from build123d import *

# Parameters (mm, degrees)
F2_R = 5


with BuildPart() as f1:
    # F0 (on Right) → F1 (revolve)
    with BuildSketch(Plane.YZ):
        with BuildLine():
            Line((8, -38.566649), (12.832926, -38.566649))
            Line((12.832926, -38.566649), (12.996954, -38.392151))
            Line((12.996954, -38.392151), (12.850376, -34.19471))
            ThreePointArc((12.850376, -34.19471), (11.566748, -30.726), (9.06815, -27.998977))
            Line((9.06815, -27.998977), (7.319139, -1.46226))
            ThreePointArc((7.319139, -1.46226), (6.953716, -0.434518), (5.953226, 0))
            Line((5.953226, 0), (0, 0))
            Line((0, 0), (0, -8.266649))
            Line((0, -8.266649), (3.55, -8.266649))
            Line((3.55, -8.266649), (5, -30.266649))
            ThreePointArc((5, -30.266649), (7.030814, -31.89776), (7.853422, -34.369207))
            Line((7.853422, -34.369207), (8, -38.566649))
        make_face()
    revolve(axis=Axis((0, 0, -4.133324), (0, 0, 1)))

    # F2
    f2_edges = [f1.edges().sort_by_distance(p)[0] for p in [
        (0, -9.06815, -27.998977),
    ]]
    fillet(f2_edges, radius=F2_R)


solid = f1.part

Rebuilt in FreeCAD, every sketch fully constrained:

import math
import FreeCAD as App
import Part
import Sketcher
Q = App.Units.Quantity


def edges_at(feature, points):
    """Names of the edges that pass closest to the given points."""
    edges = feature.Shape.Edges
    near = lambda p: min(range(len(edges)), key=lambda i: edges[i].distToShape(Part.Vertex(*p))[0])
    return sorted({f"Edge{near(p) + 1}" for p in points})

doc = App.newDocument("Part")
body = doc.addObject("PartDesign::Body", "Body")

sketch1 = body.newObject("Sketcher::SketchObject", "Sketch")
sketch1.AttachmentSupport = (doc.getObject("YZ_Plane"), [""])
sketch1.MapMode = "FlatFace"
sketch1.addGeometry(Part.LineSegment(App.Vector(8, -38.57, 0), App.Vector(12.83, -38.57, 0)), False)
sketch1.addGeometry(Part.LineSegment(App.Vector(12.83, -38.57, 0), App.Vector(13, -38.39, 0)), False)
sketch1.addGeometry(Part.LineSegment(App.Vector(13, -38.39, 0), App.Vector(12.85, -34.19, 0)), False)
sketch1.addGeometry(Part.ArcOfCircle(Part.Circle(App.Vector(3.36, -35.73, 0), App.Vector(0, 0, 1), 9.61), math.radians(9), math.radians(54)), False)
sketch1.addGeometry(Part.LineSegment(App.Vector(9.07, -28, 0), App.Vector(7.32, -1.46, 0)), False)
sketch1.addGeometry(Part.ArcOfCircle(Part.Circle(App.Vector(5.95, -1.37, 0), App.Vector(0, 0, 1), 1.37), math.radians(-4), math.radians(90)), False)
sketch1.addGeometry(Part.LineSegment(App.Vector(5.95, 0, 0), App.Vector(0, 0, 0)), False)
sketch1.addGeometry(Part.LineSegment(App.Vector(0, 0, 0), App.Vector(0, -8.27, 0)), False)
sketch1.addGeometry(Part.LineSegment(App.Vector(0, -8.27, 0), App.Vector(3.55, -8.27, 0)), False)
sketch1.addGeometry(Part.LineSegment(App.Vector(3.55, -8.27, 0), App.Vector(5, -30.27, 0)), False)
sketch1.addGeometry(Part.ArcOfCircle(Part.Circle(App.Vector(3.25, -34.53, 0), App.Vector(0, 0, 1), 4.61), math.radians(2), math.radians(68)), False)
sketch1.addGeometry(Part.LineSegment(App.Vector(7.85, -34.37, 0), App.Vector(8, -38.57, 0)), False)
sketch1.addConstraint(Sketcher.Constraint("Coincident", 0, 2, 1, 1))
sketch1.addConstraint(Sketcher.Constraint("Coincident", 1, 2, 2, 1))
sketch1.addConstraint(Sketcher.Constraint("Coincident", 2, 2, 3, 1))
sketch1.addConstraint(Sketcher.Constraint("Coincident", 3, 2, 4, 1))
sketch1.addConstraint(Sketcher.Constraint("Coincident", 4, 2, 5, 1))
sketch1.addConstraint(Sketcher.Constraint("Tangent", 5, 2, 6, 1))
sketch1.addConstraint(Sketcher.Constraint("Coincident", 6, 2, 7, 1))
sketch1.addConstraint(Sketcher.Constraint("Coincident", 7, 2, 8, 1))
sketch1.addConstraint(Sketcher.Constraint("Coincident", 8, 2, 9, 1))
sketch1.addConstraint(Sketcher.Constraint("Coincident", 9, 2, 10, 2))
sketch1.addConstraint(Sketcher.Constraint("Tangent", 10, 1, 11, 1))
sketch1.addConstraint(Sketcher.Constraint("Coincident", 11, 2, 0, 1))
sketch1.addConstraint(Sketcher.Constraint("Horizontal", 0))
sketch1.addConstraint(Sketcher.Constraint("Horizontal", 6))
sketch1.addConstraint(Sketcher.Constraint("Vertical", 7))
sketch1.addConstraint(Sketcher.Constraint("Horizontal", 8))
sketch1.addConstraint(Sketcher.Constraint("Coincident", 6, 2, -1, 1))
sketch1.addConstraint(Sketcher.Constraint("Parallel", 4, 9))
sketch1.addConstraint(Sketcher.Constraint("Parallel", 2, 11))
sketch1.addConstraint(Sketcher.Constraint("Equal", 2, 11))
sketch1.addConstraint(Sketcher.Constraint("Angle", 2, Q("92.000002 deg")))
sketch1.addConstraint(Sketcher.Constraint("DistanceX", -1, 1, 9, 2, Q("5 mm")))
sketch1.addConstraint(Sketcher.Constraint("DistanceX", -1, 1, 11, 2, Q("8 mm")))
sketch1.addConstraint(Sketcher.Constraint("Distance", 2, Q("4.2 mm")))
sketch1.addConstraint(Sketcher.Constraint("DistanceX", 8, 1, 8, 2, Q("3.55 mm")))
sketch1.addConstraint(Sketcher.Constraint("Radius", 3, Q("9.610107 mm")))
sketch1.addConstraint(Sketcher.Constraint("Radius", 5, Q("1.369087 mm")))
sketch1.addConstraint(Sketcher.Constraint("Radius", 10, Q("4.610105 mm")))
sketch1.addConstraint(Sketcher.Constraint("DistanceY", 7, 2, 7, 1, Q("8.266649 mm")))
sketch1.addConstraint(Sketcher.Constraint("DistanceX", 10, 3, 5, 3, Q("2.707101 mm")))
sketch1.addConstraint(Sketcher.Constraint("DistanceX", 10, 3, 0, 2, Q("9.586801 mm")))
sketch1.addConstraint(Sketcher.Constraint("DistanceY", 1, 2, 9, 2, Q("8.125502 mm")))
sketch1.addConstraint(Sketcher.Constraint("Distance", 1, Q("0.239488 mm")))
sketch1.addConstraint(Sketcher.Constraint("DistanceX", -1, 1, 3, 3, Q("3.36423 mm")))
sketch1.addConstraint(Sketcher.Constraint("DistanceY", 3, 3, -1, 1, Q("35.733281 mm")))
sketch1.addConstraint(Sketcher.Constraint("DistanceX", -1, 1, 3, 2, Q("9.06815 mm")))
revolution = body.newObject("PartDesign::Revolution", "Revolution")
revolution.Profile = sketch1
revolution.ReferenceAxis = (sketch1, ["V_Axis"])
revolution.Angle = 360
doc.recompute()

fillet = body.newObject("PartDesign::Fillet", "Fillet")
fillet.Base = (revolution, edges_at(revolution, [(0, -9.068, -27.999)]))
fillet.Radius = 5

doc.recompute()
